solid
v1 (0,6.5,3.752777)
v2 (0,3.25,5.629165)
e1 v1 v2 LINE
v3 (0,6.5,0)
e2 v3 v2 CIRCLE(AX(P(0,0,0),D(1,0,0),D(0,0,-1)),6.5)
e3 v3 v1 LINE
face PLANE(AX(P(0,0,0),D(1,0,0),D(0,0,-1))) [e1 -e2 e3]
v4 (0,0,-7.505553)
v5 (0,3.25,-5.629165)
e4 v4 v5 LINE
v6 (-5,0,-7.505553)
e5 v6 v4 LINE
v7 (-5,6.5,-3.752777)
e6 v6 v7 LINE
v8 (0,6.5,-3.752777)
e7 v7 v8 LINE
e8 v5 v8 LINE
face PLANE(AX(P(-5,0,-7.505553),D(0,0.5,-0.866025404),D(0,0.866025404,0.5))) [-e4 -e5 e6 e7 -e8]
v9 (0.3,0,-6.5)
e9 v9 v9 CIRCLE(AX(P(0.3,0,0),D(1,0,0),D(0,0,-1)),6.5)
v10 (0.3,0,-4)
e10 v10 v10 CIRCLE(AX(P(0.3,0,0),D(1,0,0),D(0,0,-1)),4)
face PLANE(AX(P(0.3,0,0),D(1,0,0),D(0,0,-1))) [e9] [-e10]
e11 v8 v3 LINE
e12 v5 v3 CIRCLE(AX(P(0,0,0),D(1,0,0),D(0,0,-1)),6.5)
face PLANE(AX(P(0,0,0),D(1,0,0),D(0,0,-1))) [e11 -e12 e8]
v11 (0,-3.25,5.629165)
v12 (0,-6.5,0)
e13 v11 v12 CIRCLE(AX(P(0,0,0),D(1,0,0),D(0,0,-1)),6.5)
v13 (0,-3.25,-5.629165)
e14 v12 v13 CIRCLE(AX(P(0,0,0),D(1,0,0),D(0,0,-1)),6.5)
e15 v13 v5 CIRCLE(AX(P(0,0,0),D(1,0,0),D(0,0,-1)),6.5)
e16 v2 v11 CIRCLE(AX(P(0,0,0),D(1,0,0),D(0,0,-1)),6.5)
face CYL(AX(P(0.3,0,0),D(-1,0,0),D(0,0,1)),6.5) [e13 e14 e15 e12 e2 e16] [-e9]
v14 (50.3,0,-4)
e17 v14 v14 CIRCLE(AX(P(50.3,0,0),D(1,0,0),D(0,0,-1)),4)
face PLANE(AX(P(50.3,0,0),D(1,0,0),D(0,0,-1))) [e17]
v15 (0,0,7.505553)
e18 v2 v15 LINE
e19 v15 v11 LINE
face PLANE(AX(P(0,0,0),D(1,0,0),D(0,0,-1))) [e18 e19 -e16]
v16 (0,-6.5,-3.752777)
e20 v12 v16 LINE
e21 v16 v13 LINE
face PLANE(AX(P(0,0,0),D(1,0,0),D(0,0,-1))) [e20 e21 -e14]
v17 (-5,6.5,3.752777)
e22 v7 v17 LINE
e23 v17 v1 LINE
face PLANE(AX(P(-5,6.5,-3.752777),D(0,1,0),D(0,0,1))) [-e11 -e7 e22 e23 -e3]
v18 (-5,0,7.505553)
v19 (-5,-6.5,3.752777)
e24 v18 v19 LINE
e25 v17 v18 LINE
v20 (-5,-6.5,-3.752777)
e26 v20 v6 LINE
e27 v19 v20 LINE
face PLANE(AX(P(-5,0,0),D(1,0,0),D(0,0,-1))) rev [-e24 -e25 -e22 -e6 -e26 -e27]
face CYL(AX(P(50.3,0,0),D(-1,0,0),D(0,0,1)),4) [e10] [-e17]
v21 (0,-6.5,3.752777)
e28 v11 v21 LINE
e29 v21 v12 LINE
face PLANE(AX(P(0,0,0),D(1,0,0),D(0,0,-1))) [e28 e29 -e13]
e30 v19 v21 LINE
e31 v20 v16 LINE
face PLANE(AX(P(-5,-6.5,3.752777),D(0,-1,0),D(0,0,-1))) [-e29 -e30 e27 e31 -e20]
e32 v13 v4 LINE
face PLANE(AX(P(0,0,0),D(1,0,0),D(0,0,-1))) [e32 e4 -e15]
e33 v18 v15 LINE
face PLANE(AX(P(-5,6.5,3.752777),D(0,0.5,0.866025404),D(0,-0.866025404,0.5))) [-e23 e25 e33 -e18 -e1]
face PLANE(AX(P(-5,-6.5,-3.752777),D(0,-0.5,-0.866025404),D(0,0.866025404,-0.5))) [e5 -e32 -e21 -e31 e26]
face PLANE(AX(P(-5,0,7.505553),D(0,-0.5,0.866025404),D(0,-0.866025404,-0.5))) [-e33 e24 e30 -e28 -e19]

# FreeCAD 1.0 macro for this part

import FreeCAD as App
import Part
import Sketcher

V = App.Vector
Q = App.Units.Quantity


def add_polygon(sketch, points):
    """Adds a closed chain of lines whose ends are joined by coincident constraints."""
    first, n = sketch.GeometryCount, len(points)
    for a, b in zip(points, points[1:] + points[:1]):
        sketch.addGeometry(Part.LineSegment(App.Vector(*a, 0), App.Vector(*b, 0)), False)
    for i in range(n):
        sketch.addConstraint(Sketcher.Constraint("Coincident", first + i, 2, first + (i + 1) % n, 1))

doc = App.newDocument("Part")
params = doc.addObject("Spreadsheet::Sheet", "Params")
for row, (alias, value) in enumerate([
    ("pad1_length", "5 mm"),
    ("sketch2_diameter", "13 mm"),
    ("pad2_length", "0.3 mm"),
    ("sketch3_diameter", "8 mm"),
    ("pad3_length", "50 mm"),
], start=1):
    params.set(f"A{row}", alias)
    params.set(f"B{row}", "=" + value)
    params.setAlias(f"B{row}", alias)

body = doc.addObject("PartDesign::Body", "Body")

# Sketch on YZ plane
sketch1 = body.newObject("Sketcher::SketchObject", "Sketch")
sketch1.AttachmentSupport = (doc.getObject("YZ_Plane"), [""])
sketch1.MapMode = "FlatFace"
add_polygon(sketch1, [(0, 7.505553), (-6.5, 3.752777), (-6.5, -3.752777), (0, -7.505553), (6.5, -3.752777), (6.5, 3.752777)])  # lines 0-5
sketch1.addConstraint([
    Sketcher.Constraint("Vertical", 1),
    Sketcher.Constraint("Vertical", 4),
    Sketcher.Constraint("Symmetric", 0, 2, 3, 2, -1, 1),
    Sketcher.Constraint("Symmetric", 2, 2, 5, 2, -1, 1),
    Sketcher.Constraint("PointOnObject", 2, 2, -2),
    Sketcher.Constraint("Parallel", 2, 5),
    Sketcher.Constraint("Horizontal", 1, 2, 3, 2),
    Sketcher.Constraint("Angle", 0, Q("-150 deg")),
    Sketcher.Constraint("DistanceX", 1, 2, 3, 2, 13.0),
    Sketcher.Constraint("DistanceY", 1, 2, 1, 1, 7.505554),
])
pad1 = body.newObject("PartDesign::Pad", "Pad")
pad1.Profile = sketch1
pad1.setExpression("Length", "Params.pad1_length")
pad1.Reversed = True

# Sketch on YZ plane
sketch2 = body.newObject("Sketcher::SketchObject", "Sketch001")
sketch2.AttachmentSupport = (doc.getObject("YZ_Plane"), [""])
sketch2.MapMode = "FlatFace"
sketch2.addGeometry(Part.Circle(V(0, 0, 0), V(0, 0, 1), 6.5), False)
sketch2.addConstraint([
    Sketcher.Constraint("Coincident", 0, 3, -1, 1),
    Sketcher.Constraint("Diameter", 0, 13.0),
])
sketch2.setExpression("Constraints[1]", "Params.sketch2_diameter")
pad2 = body.newObject("PartDesign::Pad", "Pad001")
pad2.Profile = sketch2
pad2.setExpression("Length", "Params.pad2_length")

# Sketch on YZ plane
sketch3 = body.newObject("Sketcher::SketchObject", "Sketch002")
sketch3.AttachmentSupport = (doc.getObject("YZ_Plane"), [""])
sketch3.MapMode = "FlatFace"
sketch3.AttachmentOffset = App.Placement(V(0, 0, 0.3), App.Rotation())
sketch3.addGeometry(Part.Circle(V(0, 0, 0), V(0, 0, 1), 4), False)
sketch3.addConstraint([
    Sketcher.Constraint("Coincident", 0, 3, -1, 1),
    Sketcher.Constraint("Diameter", 0, 8.0),
])
sketch3.setExpression("Constraints[1]", "Params.sketch3_diameter")
pad3 = body.newObject("PartDesign::Pad", "Pad002")
pad3.Profile = sketch3
pad3.setExpression("Length", "Params.pad3_length")

doc.recompute()
